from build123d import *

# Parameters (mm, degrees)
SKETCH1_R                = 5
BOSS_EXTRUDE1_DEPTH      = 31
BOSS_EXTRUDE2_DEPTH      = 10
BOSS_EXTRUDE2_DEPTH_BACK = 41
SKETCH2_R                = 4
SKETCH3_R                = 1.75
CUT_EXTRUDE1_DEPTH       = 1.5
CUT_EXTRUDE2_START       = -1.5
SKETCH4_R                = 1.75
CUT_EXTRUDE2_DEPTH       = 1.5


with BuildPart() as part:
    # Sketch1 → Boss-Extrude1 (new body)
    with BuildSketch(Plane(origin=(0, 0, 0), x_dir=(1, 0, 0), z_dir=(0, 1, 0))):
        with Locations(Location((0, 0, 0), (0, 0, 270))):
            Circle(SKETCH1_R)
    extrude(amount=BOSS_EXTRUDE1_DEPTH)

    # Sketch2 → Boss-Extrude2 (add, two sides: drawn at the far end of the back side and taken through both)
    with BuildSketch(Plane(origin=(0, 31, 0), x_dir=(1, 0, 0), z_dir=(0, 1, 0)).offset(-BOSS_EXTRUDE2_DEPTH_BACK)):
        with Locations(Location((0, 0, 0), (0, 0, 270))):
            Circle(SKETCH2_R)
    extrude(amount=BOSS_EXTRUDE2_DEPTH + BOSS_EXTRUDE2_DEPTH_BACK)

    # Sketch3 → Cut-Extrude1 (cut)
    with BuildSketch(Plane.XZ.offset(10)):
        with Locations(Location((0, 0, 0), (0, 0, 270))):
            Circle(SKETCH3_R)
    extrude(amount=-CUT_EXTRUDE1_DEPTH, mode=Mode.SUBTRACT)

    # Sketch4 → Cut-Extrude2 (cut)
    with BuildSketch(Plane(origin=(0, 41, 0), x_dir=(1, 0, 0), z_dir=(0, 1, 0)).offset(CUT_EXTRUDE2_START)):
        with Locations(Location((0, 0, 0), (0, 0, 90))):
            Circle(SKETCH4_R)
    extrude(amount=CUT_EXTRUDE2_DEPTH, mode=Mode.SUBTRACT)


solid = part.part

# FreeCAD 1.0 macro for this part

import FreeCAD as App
import Part
import Sketcher
Q = App.Units.Quantity

doc = App.newDocument("Part")
params = doc.addObject("Spreadsheet::Sheet", "Params")
for row, (alias, value) in enumerate([
    ("sketch1_diameter", "10 mm"),
    ("pad1_length", "31 mm"),
    ("sketch2_diameter", "8 mm"),
    ("pad2_length", "10 mm"),
    ("pad2_length2", "41 mm"),
    ("sketch3_diameter", "3.5 mm"),
    ("pocket1_length", "1.5 mm"),
    ("sketch4_diameter", "3.5 mm"),
    ("pocket2_length", "1.5 mm"),
], start=1):
    params.set(f"A{row}", alias)
    params.set(f"B{row}", "=" + value)
    params.setAlias(f"B{row}", alias)

body = doc.addObject("PartDesign::Body", "Body")

# Sketch on XZ plane
sketch1 = doc.addObject("Sketcher::SketchObject", "Sketch")
body.addObject(sketch1)
sketch1.AttachmentSupport = (doc.XZ_Plane, [""])
sketch1.MapMode = "FlatFace"
sketch1.addGeometry(Part.Circle(App.Vector(0, 0, 0), App.Vector(0, 0, 1), 5), False)
sketch1.addConstraint(Sketcher.Constraint("Coincident", 0, 3, -1, 1))
sketch1.addConstraint(Sketcher.Constraint("Diameter", 0, Q("10 mm")))
sketch1.setExpression("Constraints[1]", "Params.sketch1_diameter")
pad1 = doc.addObject("PartDesign::Pad", "Pad")
body.addObject(pad1)
pad1.Profile = sketch1
pad1.setExpression("Length", "Params.pad1_length")
pad1.Reversed = True

# Sketch on XZ plane
sketch2 = doc.addObject("Sketcher::SketchObject", "Sketch001")
body.addObject(sketch2)
sketch2.AttachmentSupport = (doc.XZ_Plane, [""])
sketch2.MapMode = "FlatFace"
sketch2.AttachmentOffset = App.Placement(App.Vector(0, 0, -31), App.Rotation())
sketch2.addGeometry(Part.Circle(App.Vector(0, 0, 0), App.Vector(0, 0, 1), 4), False)
sketch2.addConstraint(Sketcher.Constraint("Coincident", 0, 3, -1, 1))
sketch2.addConstraint(Sketcher.Constraint("Diameter", 0, Q("8 mm")))
sketch2.setExpression("Constraints[1]", "Params.sketch2_diameter")
pad2 = doc.addObject("PartDesign::Pad", "Pad001")
body.addObject(pad2)
pad2.Profile = sketch2
pad2.Type = "TwoLengths"
pad2.setExpression("Length", "Params.pad2_length")
pad2.setExpression("Length2", "Params.pad2_length2")
pad2.Reversed = True

# Sketch on XZ plane
sketch3 = doc.addObject("Sketcher::SketchObject", "Sketch002")
body.addObject(sketch3)
sketch3.AttachmentSupport = (doc.XZ_Plane, [""])
sketch3.MapMode = "FlatFace"
sketch3.AttachmentOffset = App.Placement(App.Vector(0, 0, 10), App.Rotation())
sketch3.addGeometry(Part.Circle(App.Vector(0, 0, 0), App.Vector(0, 0, 1), 1.8), False)
sketch3.addConstraint(Sketcher.Constraint("Coincident", 0, 3, -1, 1))
sketch3.addConstraint(Sketcher.Constraint("Diameter", 0, Q("3.5 mm")))
sketch3.setExpression("Constraints[1]", "Params.sketch3_diameter")
pocket1 = doc.addObject("PartDesign::Pocket", "Pocket")
body.addObject(pocket1)
pocket1.Profile = sketch3
pocket1.setExpression("Length", "Params.pocket1_length")

# Sketch on XZ plane
sketch4 = doc.addObject("Sketcher::SketchObject", "Sketch003")
body.addObject(sketch4)
sketch4.AttachmentSupport = (doc.XZ_Plane, [""])
sketch4.MapMode = "FlatFace"
sketch4.AttachmentOffset = App.Placement(App.Vector(0, 0, -39.5), App.Rotation())
sketch4.addGeometry(Part.Circle(App.Vector(0, 0, 0), App.Vector(0, 0, 1), 1.8), False)
sketch4.addConstraint(Sketcher.Constraint("Coincident", 0, 3, -1, 1))
sketch4.addConstraint(Sketcher.Constraint("Diameter", 0, Q("3.5 mm")))
sketch4.setExpression("Constraints[1]", "Params.sketch4_diameter")
pocket2 = doc.addObject("PartDesign::Pocket", "Pocket001")
body.addObject(pocket2)
pocket2.Profile = sketch4
pocket2.setExpression("Length", "Params.pocket2_length")

doc.recompute()
